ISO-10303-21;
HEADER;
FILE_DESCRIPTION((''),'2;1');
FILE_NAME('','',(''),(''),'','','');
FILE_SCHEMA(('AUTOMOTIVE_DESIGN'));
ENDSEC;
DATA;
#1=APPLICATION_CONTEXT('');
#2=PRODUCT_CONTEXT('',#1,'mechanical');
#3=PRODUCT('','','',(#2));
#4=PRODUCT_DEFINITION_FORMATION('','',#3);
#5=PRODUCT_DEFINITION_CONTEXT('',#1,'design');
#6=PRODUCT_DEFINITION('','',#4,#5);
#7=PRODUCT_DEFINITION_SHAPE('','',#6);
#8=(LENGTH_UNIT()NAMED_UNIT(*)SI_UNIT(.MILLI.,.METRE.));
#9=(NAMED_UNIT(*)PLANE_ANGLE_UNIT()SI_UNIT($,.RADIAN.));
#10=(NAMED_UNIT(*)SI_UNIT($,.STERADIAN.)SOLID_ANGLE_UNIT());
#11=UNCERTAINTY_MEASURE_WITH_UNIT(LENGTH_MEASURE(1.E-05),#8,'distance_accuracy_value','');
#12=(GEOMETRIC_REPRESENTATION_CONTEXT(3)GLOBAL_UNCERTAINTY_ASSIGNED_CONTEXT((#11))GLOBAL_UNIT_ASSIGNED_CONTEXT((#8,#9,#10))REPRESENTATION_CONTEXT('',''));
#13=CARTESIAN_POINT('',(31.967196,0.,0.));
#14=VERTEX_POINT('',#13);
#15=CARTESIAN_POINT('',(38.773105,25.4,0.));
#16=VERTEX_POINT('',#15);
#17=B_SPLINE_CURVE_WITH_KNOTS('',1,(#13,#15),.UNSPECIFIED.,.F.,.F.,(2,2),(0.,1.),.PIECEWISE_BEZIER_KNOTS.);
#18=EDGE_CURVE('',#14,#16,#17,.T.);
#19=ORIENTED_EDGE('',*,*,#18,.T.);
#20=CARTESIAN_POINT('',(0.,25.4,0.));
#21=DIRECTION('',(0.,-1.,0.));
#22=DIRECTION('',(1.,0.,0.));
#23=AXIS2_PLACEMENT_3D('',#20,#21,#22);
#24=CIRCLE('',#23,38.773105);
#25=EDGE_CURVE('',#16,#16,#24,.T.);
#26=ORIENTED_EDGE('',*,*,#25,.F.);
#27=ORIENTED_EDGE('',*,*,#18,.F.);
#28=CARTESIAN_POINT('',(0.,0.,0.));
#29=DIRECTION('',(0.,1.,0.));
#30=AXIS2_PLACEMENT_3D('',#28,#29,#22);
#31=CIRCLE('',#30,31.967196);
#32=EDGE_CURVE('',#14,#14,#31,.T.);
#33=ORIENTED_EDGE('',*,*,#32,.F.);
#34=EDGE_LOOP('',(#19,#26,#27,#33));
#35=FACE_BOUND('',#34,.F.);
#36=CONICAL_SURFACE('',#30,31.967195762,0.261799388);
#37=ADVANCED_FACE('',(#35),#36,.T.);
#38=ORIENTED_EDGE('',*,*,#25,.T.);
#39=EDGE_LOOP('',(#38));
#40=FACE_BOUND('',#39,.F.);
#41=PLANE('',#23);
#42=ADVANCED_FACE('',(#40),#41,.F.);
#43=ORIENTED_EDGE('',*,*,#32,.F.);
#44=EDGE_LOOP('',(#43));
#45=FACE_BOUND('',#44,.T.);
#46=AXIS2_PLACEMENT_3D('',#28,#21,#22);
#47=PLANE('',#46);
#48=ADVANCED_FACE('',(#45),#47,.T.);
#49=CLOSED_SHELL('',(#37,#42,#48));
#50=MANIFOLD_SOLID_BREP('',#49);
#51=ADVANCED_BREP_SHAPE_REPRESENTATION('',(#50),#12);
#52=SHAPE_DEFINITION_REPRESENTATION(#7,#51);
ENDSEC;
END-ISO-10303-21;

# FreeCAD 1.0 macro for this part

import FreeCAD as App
import Part
import Sketcher
from FreeCAD import Vector
Q = App.Units.Quantity

doc = App.newDocument("Part")
body = doc.addObject("PartDesign::Body", "Body")

sketch1 = body.newObject("Sketcher::SketchObject", "Sketch")
sketch1.AttachmentSupport = (doc.getObject("XZ_Plane"), [""])
sketch1.MapMode = "FlatFace"
sketch1.addGeometry(Part.Circle(Vector(0, 0, 0), Vector(0, 0, 1), 32), False)
sketch1.addConstraint([
    Sketcher.Constraint("Coincident", 0, 3, -1, 1),
    Sketcher.Constraint("Diameter", 0, 63.934392),
])
pad1 = body.newObject("PartDesign::Pad", "Pad")
pad1.Profile = sketch1
pad1.Length = Q("1 in")
pad1.Reversed = True
pad1.TaperAngle = 15

doc.recompute()
